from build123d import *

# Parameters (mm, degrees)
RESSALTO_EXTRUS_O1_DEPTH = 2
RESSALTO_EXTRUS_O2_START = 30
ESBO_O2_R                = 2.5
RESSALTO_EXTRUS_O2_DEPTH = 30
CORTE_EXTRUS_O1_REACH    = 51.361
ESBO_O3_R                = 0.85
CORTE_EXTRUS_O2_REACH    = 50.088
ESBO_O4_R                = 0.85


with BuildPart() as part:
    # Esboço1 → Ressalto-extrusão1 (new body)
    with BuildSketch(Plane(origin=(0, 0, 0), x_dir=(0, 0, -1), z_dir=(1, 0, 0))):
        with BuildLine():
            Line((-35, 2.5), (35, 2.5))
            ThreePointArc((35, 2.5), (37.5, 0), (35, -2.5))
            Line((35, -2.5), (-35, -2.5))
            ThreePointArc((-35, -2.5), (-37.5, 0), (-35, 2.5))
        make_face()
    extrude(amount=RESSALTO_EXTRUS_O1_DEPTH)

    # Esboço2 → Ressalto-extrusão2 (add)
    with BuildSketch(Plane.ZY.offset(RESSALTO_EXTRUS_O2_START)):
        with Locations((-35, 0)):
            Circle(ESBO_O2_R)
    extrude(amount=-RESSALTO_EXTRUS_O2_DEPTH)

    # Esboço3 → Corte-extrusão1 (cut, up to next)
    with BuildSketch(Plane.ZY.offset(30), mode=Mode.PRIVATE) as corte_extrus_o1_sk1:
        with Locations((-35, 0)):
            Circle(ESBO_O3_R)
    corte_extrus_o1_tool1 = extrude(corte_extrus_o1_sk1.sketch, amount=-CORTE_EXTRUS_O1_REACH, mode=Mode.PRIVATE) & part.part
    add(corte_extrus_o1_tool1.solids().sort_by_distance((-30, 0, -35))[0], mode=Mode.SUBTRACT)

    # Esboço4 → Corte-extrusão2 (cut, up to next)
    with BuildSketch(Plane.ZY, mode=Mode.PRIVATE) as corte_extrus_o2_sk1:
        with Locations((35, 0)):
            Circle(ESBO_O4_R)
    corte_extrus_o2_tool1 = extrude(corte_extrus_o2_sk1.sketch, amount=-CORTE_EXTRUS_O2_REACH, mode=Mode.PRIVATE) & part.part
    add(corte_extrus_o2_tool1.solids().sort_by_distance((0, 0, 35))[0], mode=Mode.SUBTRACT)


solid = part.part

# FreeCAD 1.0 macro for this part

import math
import FreeCAD as App
import Part
import Sketcher

doc = App.newDocument("Part")
body = doc.addObject("PartDesign::Body", "Body")

sketch1 = doc.addObject("Sketcher::SketchObject", "Sketch")
body.addObject(sketch1)
sketch1.AttachmentSupport = (doc.YZ_Plane, [""])
sketch1.MapMode = "FlatFace"
sketch1.addGeometry(Part.LineSegment(App.Vector(2.5, -35, 0), App.Vector(2.5, 35, 0)), False)
sketch1.addGeometry(Part.ArcOfCircle(Part.Circle(App.Vector(0, 35, 0), App.Vector(0, 0, 1), 2.5), math.radians(0), math.radians(180)), False)
sketch1.addGeometry(Part.LineSegment(App.Vector(-2.5, 35, 0), App.Vector(-2.5, -35, 0)), False)
sketch1.addGeometry(Part.ArcOfCircle(Part.Circle(App.Vector(0, -35, 0), App.Vector(0, 0, 1), 2.5), math.radians(180), math.radians(360)), False)
sketch1.addConstraint(Sketcher.Constraint("Tangent", 0, 2, 1, 1))
sketch1.addConstraint(Sketcher.Constraint("Tangent", 1, 2, 2, 1))
sketch1.addConstraint(Sketcher.Constraint("Tangent", 2, 2, 3, 1))
sketch1.addConstraint(Sketcher.Constraint("Tangent", 3, 2, 0, 1))
sketch1.addConstraint(Sketcher.Constraint("Vertical", 0))
sketch1.addConstraint(Sketcher.Constraint("Vertical", 2))
sketch1.addConstraint(Sketcher.Constraint("Symmetric", 1, 3, 3, 3, -1, 1))
sketch1.addConstraint(Sketcher.Constraint("Radius", 1, 2.5))
sketch1.addConstraint(Sketcher.Constraint("DistanceY", 0, 1, 0, 2, 70.0))
pad1 = doc.addObject("PartDesign::Pad", "Pad")
body.addObject(pad1)
pad1.Profile = sketch1
pad1.Length = 2

sketch2 = doc.addObject("Sketcher::SketchObject", "Sketch001")
body.addObject(sketch2)
sketch2.AttachmentSupport = (doc.YZ_Plane, [""])
sketch2.MapMode = "FlatFace"
sketch2.AttachmentOffset = App.Placement(App.Vector(0, 0, -30), App.Rotation())
sketch2.addGeometry(Part.Circle(App.Vector(0, -35, 0), App.Vector(0, 0, 1), 2.5), False)
sketch2.addConstraint(Sketcher.Constraint("PointOnObject", 0, 3, -2))
sketch2.addConstraint(Sketcher.Constraint("Diameter", 0, 5.0))
sketch2.addConstraint(Sketcher.Constraint("DistanceY", 0, 3, -1, 1, 35.0))
pad2 = doc.addObject("PartDesign::Pad", "Pad001")
body.addObject(pad2)
pad2.Profile = sketch2
pad2.Length = 30

sketch3 = doc.addObject("Sketcher::SketchObject", "Sketch002")
body.addObject(sketch3)
sketch3.AttachmentSupport = (doc.YZ_Plane, [""])
sketch3.MapMode = "FlatFace"
sketch3.AttachmentOffset = App.Placement(App.Vector(0, 0, -30), App.Rotation())
sketch3.addGeometry(Part.Circle(App.Vector(0, -35, 0), App.Vector(0, 0, 1), 0.8), False)
sketch3.addConstraint(Sketcher.Constraint("PointOnObject", 0, 3, -2))
sketch3.addConstraint(Sketcher.Constraint("Diameter", 0, 1.7))
sketch3.addConstraint(Sketcher.Constraint("DistanceY", 0, 3, -1, 1, 35.0))
pocket1 = doc.addObject("PartDesign::Pocket", "Pocket")
body.addObject(pocket1)
pocket1.Profile = sketch3
pocket1.Type = "UpToFirst"
pocket1.Reversed = True

sketch4 = doc.addObject("Sketcher::SketchObject", "Sketch003")
body.addObject(sketch4)
sketch4.AttachmentSupport = (doc.YZ_Plane, [""])
sketch4.MapMode = "FlatFace"
sketch4.addGeometry(Part.Circle(App.Vector(0, 35, 0), App.Vector(0, 0, 1), 0.8), False)
sketch4.addConstraint(Sketcher.Constraint("PointOnObject", 0, 3, -2))
sketch4.addConstraint(Sketcher.Constraint("Diameter", 0, 1.7))
sketch4.addConstraint(Sketcher.Constraint("DistanceY", -1, 1, 0, 3, 35.0))
pocket2 = doc.addObject("PartDesign::Pocket", "Pocket001")
body.addObject(pocket2)
pocket2.Profile = sketch4
pocket2.Type = "UpToFirst"
pocket2.Reversed = True

doc.recompute()
